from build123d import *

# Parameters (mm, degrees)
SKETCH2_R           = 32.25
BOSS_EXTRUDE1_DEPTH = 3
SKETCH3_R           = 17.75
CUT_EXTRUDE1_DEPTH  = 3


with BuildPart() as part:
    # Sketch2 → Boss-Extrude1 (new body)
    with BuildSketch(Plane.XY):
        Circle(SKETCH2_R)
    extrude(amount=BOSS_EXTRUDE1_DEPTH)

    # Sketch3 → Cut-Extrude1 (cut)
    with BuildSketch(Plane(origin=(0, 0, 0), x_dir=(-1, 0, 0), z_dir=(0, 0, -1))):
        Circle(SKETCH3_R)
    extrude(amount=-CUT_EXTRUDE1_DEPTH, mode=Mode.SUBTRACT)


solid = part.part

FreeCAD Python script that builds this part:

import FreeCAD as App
import Part
import Sketcher

V = App.Vector

doc = App.newDocument("Part")
body = doc.addObject("PartDesign::Body", "Body")

# Sketch on XY plane
sketch1 = doc.addObject("Sketcher::SketchObject", "Sketch")
body.addObject(sketch1)
sketch1.AttachmentSupport = (doc.XY_Plane, [""])
sketch1.MapMode = "FlatFace"
sketch1.addGeometry(Part.Circle(V(0, 0, 0), V(0, 0, 1), 32), False)
sketch1.addConstraint([
    Sketcher.Constraint("Coincident", 0, 3, -1, 1),
    Sketcher.Constraint("Diameter", 0, 64.5),
])
pad1 = doc.addObject("PartDesign::Pad", "Pad")
body.addObject(pad1)
pad1.Profile = sketch1
pad1.Length = 3

# Sketch on XY plane
sketch2 = doc.addObject("Sketcher::SketchObject", "Sketch001")
body.addObject(sketch2)
sketch2.AttachmentSupport = (doc.XY_Plane, [""])
sketch2.MapMode = "FlatFace"
sketch2.addGeometry(Part.Circle(V(0, 0, 0), V(0, 0, 1), 18), False)
sketch2.addConstraint([
    Sketcher.Constraint("Coincident", 0, 3, -1, 1),
    Sketcher.Constraint("Diameter", 0, 35.5),
])
pocket1 = doc.addObject("PartDesign::Pocket", "Pocket")
body.addObject(pocket1)
pocket1.Profile = sketch2
pocket1.Length = 3
pocket1.Reversed = True

doc.recompute()
